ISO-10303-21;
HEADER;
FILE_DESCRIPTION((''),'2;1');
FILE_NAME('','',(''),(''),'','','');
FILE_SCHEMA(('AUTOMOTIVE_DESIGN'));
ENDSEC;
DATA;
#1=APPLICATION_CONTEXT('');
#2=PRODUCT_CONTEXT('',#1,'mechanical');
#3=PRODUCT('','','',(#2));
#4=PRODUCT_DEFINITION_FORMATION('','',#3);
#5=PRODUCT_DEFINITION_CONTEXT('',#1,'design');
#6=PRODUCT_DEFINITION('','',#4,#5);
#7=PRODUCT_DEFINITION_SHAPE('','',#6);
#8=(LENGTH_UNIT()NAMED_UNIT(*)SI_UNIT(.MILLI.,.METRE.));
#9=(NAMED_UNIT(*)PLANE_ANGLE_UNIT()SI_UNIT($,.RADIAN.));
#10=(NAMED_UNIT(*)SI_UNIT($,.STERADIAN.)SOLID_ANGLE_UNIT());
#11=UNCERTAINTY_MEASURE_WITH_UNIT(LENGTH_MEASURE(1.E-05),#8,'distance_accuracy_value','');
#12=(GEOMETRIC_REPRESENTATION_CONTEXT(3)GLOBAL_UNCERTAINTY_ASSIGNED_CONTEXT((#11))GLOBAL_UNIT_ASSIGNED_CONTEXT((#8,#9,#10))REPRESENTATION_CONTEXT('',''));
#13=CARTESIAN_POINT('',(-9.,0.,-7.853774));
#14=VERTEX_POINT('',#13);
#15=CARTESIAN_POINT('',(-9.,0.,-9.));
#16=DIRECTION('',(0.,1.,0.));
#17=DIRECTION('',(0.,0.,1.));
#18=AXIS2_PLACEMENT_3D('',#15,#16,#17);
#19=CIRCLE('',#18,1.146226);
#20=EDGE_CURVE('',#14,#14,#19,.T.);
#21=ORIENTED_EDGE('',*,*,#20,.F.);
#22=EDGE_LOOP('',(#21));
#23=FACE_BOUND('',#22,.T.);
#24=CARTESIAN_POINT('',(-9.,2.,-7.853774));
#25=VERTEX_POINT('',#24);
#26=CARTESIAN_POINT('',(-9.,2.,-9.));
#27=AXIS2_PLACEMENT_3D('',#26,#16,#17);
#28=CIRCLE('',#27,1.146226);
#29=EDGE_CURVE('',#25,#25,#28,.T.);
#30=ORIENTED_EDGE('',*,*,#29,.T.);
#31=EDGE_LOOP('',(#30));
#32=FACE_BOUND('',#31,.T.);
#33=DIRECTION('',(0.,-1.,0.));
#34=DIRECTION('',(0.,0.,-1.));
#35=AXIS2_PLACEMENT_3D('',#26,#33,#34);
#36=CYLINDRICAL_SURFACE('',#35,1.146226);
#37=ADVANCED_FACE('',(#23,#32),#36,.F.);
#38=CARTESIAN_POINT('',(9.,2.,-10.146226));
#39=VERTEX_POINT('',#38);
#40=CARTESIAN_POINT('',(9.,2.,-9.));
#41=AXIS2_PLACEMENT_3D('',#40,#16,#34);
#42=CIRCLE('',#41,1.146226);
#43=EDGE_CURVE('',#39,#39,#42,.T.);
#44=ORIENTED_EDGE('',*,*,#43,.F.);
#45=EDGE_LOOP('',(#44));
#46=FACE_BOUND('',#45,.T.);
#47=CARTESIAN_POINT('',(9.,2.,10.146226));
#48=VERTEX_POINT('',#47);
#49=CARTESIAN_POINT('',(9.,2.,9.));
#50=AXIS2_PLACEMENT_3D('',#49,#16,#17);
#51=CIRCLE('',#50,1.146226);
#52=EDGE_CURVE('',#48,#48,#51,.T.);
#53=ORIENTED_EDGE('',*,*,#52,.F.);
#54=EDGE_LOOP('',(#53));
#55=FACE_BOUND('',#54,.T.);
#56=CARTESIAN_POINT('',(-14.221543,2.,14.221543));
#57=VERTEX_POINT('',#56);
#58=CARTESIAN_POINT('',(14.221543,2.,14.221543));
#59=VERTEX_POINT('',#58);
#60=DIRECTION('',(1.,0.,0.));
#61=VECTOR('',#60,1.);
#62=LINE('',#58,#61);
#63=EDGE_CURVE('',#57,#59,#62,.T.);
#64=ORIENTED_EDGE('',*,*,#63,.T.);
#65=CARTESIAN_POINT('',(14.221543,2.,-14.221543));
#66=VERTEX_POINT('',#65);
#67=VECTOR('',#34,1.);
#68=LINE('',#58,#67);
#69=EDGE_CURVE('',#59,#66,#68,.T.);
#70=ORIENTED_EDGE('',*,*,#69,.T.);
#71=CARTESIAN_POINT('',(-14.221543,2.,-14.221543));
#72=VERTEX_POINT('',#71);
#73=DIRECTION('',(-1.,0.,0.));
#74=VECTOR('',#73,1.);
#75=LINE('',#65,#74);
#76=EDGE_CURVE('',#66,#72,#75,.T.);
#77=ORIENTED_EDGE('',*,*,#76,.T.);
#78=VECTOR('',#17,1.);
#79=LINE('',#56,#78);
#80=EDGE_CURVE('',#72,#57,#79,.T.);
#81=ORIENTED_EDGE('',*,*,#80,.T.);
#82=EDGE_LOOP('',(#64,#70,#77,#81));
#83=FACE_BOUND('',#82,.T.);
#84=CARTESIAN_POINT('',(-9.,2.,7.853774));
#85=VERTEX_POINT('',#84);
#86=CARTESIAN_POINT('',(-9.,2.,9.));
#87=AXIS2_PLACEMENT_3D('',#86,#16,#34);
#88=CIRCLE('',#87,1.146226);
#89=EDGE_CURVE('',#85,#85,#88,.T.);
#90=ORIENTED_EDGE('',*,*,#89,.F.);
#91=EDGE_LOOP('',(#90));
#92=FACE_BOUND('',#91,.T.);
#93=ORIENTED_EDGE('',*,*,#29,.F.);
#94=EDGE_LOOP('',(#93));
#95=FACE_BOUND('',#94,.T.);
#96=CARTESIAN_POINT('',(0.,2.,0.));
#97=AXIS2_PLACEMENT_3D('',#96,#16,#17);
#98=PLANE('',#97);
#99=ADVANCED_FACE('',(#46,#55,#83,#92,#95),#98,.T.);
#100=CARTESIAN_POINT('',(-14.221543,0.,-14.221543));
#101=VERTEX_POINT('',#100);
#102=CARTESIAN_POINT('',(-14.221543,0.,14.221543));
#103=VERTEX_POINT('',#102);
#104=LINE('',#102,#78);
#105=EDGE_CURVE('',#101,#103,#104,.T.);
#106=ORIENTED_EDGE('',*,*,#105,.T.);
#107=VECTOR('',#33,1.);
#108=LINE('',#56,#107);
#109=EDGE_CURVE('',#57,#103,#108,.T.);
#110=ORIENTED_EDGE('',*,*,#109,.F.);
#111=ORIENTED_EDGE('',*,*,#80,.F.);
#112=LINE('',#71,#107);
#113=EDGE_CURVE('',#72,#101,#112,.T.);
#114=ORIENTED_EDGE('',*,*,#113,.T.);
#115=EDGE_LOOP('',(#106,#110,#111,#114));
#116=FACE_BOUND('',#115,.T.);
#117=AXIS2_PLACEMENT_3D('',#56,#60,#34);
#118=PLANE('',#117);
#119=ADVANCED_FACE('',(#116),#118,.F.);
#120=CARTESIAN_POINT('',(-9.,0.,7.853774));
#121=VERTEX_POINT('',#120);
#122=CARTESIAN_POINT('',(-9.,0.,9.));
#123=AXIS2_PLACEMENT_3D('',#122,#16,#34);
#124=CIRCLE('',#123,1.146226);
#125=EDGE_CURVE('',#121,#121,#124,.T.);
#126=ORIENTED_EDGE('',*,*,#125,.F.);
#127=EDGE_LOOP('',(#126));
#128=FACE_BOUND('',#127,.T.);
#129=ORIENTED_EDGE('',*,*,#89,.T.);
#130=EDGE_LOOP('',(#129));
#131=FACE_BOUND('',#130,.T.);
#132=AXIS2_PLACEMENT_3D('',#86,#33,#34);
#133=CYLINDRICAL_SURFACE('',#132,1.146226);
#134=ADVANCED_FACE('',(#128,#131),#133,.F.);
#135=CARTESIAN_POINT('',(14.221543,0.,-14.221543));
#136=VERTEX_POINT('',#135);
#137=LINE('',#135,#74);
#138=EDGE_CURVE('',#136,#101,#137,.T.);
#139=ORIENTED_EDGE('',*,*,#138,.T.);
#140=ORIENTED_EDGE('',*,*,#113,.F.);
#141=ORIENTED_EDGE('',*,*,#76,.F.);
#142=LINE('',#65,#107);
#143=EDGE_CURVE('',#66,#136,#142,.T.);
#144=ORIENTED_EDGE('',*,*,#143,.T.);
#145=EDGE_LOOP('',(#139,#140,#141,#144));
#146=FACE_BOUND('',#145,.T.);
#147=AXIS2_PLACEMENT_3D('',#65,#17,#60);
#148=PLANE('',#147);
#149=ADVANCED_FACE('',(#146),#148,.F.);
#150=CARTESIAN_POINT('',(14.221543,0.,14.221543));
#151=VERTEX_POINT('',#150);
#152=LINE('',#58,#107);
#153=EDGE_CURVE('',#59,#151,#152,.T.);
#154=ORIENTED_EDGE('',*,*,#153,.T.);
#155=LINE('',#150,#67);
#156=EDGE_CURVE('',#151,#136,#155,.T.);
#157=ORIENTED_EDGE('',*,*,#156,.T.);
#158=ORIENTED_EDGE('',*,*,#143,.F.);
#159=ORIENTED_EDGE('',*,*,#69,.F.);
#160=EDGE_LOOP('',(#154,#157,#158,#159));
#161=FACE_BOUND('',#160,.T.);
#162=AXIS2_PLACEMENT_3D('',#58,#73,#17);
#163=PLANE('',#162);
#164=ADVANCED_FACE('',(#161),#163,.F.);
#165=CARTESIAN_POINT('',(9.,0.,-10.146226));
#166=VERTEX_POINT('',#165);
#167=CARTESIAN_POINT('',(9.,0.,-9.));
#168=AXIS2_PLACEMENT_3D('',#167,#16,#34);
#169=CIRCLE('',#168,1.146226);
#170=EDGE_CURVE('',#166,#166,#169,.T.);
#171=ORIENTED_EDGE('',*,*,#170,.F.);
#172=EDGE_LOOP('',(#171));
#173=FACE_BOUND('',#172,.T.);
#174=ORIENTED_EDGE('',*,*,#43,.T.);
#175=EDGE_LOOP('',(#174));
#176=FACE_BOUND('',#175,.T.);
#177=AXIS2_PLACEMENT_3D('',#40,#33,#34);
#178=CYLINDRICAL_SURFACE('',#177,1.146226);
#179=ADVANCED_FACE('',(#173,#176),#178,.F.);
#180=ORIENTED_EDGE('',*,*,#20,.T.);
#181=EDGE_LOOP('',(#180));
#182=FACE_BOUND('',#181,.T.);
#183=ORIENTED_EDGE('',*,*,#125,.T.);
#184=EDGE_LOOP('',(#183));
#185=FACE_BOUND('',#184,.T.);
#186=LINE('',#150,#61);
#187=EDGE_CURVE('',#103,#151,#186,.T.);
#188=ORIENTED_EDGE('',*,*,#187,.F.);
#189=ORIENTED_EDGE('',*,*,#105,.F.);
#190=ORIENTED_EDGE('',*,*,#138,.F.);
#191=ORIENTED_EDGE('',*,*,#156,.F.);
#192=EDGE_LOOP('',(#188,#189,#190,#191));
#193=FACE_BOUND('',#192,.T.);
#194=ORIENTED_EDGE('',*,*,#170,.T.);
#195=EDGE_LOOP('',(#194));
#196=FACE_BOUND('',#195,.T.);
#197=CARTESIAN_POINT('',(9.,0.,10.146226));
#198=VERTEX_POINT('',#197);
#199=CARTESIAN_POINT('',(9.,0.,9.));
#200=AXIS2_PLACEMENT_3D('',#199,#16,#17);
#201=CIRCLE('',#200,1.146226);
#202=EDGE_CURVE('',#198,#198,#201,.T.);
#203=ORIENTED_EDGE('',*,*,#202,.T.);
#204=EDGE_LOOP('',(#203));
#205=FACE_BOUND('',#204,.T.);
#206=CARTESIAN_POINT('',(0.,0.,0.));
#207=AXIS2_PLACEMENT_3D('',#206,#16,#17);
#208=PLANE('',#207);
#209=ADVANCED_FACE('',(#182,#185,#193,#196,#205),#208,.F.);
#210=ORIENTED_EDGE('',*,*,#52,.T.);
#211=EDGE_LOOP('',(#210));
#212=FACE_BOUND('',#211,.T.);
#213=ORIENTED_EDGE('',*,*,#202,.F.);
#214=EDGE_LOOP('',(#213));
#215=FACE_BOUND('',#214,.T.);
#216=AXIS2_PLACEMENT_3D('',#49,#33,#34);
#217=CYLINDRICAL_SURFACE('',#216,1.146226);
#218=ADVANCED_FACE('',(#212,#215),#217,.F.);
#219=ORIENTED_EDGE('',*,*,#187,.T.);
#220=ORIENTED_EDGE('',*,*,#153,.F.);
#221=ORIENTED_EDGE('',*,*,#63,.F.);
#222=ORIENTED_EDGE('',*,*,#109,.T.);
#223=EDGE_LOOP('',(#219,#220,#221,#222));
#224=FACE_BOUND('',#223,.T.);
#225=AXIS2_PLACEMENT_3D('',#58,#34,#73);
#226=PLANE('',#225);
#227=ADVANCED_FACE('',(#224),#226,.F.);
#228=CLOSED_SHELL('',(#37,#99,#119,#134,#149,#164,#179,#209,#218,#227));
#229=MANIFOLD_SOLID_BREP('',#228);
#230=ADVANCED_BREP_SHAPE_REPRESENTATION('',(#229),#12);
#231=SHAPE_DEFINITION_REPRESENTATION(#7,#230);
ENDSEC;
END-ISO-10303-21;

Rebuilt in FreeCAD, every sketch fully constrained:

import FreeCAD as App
import Part
import Sketcher

doc = App.newDocument("Part")
body = doc.addObject("PartDesign::Body", "Body")

# Sketch on XZ plane
sketch1 = body.newObject("Sketcher::SketchObject", "Sketch")
sketch1.AttachmentSupport = (doc.getObject("XZ_Plane"), [""])
sketch1.MapMode = "FlatFace"
sketch1.addGeometry([
    Part.LineSegment(App.Vector(-14.2, -14.2, 0), App.Vector(-14.2, 14.2, 0)),  # 0
    Part.LineSegment(App.Vector(-14.2, 14.2, 0), App.Vector(14.2, 14.2, 0)),  # 1
    Part.LineSegment(App.Vector(14.2, 14.2, 0), App.Vector(14.2, -14.2, 0)),  # 2
    Part.LineSegment(App.Vector(14.2, -14.2, 0), App.Vector(-14.2, -14.2, 0)),  # 3
    Part.Circle(App.Vector(-9, 9, 0), App.Vector(0, 0, 1), 1.1),  # 4
    Part.Circle(App.Vector(9, 9, 0), App.Vector(0, 0, 1), 1.1),  # 5
    Part.Circle(App.Vector(-9, -9, 0), App.Vector(0, 0, 1), 1.1),  # 6
    Part.Circle(App.Vector(9, -9, 0), App.Vector(0, 0, 1), 1.1),  # 7
], False)
sketch1.addConstraint([
    Sketcher.Constraint("Coincident", 0, 2, 1, 1),
    Sketcher.Constraint("Coincident", 1, 2, 2, 1),
    Sketcher.Constraint("Coincident", 2, 2, 3, 1),
    Sketcher.Constraint("Coincident", 3, 2, 0, 1),
    Sketcher.Constraint("Vertical", 0),
    Sketcher.Constraint("Horizontal", 1),
    Sketcher.Constraint("Vertical", 2),
    Sketcher.Constraint("Horizontal", 3),
    Sketcher.Constraint("Equal", 4, 5),
    Sketcher.Constraint("Equal", 5, 6),
    Sketcher.Constraint("Equal", 6, 7),
    Sketcher.Constraint("Symmetric", 5, 3, 6, 3, -1, 1),
    Sketcher.Constraint("Symmetric", 4, 3, 7, 3, -1, 1),
    Sketcher.Constraint("Symmetric", 0, 2, 2, 2, -1, 1),
    Sketcher.Constraint("Symmetric", 4, 3, 5, 3, -2),
    Sketcher.Constraint("Equal", 3, 0),
    Sketcher.Constraint("DistanceX", 4, 3, -1, 1, 9.0),
    Sketcher.Constraint("DistanceY", -1, 1, 4, 3, 9.0),
    Sketcher.Constraint("Diameter", 4, 2.292451),
    Sketcher.Constraint("DistanceX", 1, 1, 1, 2, 28.443085),
])
pad1 = body.newObject("PartDesign::Pad", "Pad")
pad1.Profile = sketch1
pad1.Length = 2
pad1.Reversed = True

doc.recompute()
